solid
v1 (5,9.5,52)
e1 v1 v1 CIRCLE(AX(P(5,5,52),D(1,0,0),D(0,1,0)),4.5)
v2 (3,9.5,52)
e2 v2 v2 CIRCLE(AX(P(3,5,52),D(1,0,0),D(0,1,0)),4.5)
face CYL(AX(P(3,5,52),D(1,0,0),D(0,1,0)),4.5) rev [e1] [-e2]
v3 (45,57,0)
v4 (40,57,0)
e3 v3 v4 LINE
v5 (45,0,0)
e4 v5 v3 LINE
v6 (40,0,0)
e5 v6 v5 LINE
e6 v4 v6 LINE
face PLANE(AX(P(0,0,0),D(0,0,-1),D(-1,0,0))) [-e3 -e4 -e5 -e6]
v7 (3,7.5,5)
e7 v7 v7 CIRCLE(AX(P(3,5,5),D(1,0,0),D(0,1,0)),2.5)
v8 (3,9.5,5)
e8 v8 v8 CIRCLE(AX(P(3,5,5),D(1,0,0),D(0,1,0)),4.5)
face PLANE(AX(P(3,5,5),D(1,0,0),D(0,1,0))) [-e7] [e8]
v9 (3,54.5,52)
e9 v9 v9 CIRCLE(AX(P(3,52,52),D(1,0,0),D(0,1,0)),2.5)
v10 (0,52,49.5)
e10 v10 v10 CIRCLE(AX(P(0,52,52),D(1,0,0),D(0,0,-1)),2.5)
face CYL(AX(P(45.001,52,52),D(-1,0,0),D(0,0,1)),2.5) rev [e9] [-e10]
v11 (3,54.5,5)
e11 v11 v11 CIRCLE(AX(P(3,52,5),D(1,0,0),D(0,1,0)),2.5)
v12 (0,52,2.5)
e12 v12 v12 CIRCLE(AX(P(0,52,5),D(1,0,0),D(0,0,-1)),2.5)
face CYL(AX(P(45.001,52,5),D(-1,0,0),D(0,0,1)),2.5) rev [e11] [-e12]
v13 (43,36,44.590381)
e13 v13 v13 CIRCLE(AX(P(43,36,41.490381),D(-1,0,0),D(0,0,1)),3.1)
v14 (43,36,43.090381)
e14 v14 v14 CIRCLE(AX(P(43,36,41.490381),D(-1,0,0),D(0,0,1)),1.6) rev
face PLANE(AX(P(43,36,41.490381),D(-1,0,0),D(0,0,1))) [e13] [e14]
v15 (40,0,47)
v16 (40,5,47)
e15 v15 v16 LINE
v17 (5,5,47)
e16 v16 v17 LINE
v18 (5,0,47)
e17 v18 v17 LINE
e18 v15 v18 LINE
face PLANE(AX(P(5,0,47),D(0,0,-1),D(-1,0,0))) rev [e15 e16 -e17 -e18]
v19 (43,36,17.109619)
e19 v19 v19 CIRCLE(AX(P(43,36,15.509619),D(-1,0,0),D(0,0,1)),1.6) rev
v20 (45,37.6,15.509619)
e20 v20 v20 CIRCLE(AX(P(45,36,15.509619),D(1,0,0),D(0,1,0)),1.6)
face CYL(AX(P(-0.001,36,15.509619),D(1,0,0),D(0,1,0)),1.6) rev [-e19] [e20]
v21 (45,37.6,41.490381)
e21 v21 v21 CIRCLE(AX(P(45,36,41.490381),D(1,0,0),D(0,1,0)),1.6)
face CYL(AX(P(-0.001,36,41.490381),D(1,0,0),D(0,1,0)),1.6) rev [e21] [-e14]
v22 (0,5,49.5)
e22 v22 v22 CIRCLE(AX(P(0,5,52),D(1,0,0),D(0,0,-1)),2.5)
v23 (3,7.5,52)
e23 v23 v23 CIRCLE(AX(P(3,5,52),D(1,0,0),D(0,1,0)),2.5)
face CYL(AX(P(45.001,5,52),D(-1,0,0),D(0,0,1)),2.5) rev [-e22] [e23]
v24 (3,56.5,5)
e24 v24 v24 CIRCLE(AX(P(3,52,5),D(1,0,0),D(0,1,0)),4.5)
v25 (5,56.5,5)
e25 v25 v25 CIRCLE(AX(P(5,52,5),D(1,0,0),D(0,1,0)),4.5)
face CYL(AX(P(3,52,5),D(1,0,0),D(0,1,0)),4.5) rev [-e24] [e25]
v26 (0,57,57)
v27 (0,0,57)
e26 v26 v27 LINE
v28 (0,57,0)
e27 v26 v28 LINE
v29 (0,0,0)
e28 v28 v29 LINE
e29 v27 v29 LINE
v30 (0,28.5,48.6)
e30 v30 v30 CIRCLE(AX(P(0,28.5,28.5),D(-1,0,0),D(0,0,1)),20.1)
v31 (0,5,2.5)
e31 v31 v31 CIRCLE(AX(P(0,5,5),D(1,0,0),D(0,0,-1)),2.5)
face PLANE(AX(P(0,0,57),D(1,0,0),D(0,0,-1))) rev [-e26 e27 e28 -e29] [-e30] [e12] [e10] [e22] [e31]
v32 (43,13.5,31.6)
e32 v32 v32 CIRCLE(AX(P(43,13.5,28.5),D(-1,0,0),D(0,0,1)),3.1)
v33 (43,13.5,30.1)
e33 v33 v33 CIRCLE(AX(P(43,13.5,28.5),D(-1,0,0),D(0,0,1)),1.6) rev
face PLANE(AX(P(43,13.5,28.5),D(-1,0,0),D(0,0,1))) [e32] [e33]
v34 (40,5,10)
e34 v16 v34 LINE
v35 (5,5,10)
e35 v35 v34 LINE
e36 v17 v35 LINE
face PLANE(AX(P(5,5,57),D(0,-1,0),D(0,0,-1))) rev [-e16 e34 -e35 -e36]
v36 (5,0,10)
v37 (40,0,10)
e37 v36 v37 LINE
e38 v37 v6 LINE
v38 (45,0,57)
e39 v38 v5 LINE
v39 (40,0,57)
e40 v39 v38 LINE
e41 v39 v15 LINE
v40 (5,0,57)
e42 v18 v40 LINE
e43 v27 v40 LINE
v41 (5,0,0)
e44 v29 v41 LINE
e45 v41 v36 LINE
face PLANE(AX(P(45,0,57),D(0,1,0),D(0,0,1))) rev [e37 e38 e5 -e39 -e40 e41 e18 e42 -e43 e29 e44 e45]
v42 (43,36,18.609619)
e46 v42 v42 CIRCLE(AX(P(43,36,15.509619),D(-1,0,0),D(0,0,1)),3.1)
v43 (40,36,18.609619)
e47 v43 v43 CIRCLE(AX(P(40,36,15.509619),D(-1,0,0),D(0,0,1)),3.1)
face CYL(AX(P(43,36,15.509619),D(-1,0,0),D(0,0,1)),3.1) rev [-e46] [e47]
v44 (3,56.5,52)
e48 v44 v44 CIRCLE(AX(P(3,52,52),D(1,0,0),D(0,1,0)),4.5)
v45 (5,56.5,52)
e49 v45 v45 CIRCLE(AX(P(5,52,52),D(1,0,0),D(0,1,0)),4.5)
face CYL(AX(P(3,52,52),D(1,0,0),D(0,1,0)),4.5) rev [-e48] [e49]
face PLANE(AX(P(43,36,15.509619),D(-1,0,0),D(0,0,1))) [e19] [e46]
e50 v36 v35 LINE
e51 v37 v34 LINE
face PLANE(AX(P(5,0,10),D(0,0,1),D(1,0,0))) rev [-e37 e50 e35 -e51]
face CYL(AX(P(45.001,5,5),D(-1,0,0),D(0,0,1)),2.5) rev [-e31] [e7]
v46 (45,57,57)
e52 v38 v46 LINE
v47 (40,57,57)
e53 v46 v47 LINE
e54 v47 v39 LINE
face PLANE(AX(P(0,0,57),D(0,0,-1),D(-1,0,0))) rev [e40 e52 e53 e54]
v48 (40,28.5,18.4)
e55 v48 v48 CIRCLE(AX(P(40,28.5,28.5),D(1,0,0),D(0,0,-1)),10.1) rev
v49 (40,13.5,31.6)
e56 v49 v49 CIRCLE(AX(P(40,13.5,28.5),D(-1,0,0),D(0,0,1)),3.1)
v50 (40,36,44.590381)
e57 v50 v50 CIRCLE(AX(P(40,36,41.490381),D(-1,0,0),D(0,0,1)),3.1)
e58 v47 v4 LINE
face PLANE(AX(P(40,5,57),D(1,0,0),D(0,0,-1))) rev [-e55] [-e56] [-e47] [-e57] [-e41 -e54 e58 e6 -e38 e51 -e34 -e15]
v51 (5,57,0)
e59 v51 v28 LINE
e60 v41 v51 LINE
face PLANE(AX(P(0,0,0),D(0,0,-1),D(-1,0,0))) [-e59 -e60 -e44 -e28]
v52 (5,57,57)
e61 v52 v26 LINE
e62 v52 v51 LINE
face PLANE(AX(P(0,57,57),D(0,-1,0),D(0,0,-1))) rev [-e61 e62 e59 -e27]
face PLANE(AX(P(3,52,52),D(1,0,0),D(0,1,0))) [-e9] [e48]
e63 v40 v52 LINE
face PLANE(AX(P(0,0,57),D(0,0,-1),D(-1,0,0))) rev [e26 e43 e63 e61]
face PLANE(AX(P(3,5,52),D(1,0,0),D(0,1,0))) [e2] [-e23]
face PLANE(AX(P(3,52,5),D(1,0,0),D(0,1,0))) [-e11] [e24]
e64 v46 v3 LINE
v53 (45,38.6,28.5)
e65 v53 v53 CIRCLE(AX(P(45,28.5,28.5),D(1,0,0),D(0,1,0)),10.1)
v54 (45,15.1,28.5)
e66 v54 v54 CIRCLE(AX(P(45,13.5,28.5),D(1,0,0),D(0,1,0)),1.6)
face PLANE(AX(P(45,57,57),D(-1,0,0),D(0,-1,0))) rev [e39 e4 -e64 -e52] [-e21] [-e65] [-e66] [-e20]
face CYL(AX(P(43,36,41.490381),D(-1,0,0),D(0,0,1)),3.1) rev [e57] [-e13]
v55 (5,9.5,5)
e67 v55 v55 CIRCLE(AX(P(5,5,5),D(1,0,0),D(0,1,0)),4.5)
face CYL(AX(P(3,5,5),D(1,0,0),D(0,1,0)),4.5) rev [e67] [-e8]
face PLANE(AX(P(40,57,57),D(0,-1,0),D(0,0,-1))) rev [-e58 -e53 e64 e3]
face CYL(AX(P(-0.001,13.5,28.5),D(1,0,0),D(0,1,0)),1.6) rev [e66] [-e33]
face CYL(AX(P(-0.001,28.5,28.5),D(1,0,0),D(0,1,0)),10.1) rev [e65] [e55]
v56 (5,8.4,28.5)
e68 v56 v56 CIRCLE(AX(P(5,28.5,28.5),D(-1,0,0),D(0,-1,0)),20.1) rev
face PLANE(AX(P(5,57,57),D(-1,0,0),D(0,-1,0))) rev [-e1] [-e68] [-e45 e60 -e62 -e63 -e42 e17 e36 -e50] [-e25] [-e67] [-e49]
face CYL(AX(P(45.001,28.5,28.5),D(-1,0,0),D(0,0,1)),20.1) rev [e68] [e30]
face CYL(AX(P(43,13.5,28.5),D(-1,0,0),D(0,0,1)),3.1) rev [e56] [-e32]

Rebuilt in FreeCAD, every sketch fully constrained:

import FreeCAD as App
import Part
import Sketcher

V = App.Vector

doc = App.newDocument("Part")
body = doc.addObject("PartDesign::Body", "Body")

# Sketch on XY plane
sketch1 = body.newObject("Sketcher::SketchObject", "Sketch")
sketch1.AttachmentSupport = (doc.getObject("XY_Plane"), [""])
sketch1.MapMode = "FlatFace"
sketch1.addGeometry([
    Part.LineSegment(V(0, 57, 0), V(0, 0, 0)),  # 0
    Part.LineSegment(V(0, 0, 0), V(45, 0, 0)),  # 1
    Part.LineSegment(V(45, 0, 0), V(45, 57, 0)),  # 2
    Part.LineSegment(V(45, 57, 0), V(40, 57, 0)),  # 3
    Part.LineSegment(V(40, 57, 0), V(40, 5, 0)),  # 4
    Part.LineSegment(V(40, 5, 0), V(5, 5, 0)),  # 5
    Part.LineSegment(V(5, 5, 0), V(5, 57, 0)),  # 6
    Part.LineSegment(V(5, 57, 0), V(0, 57, 0)),  # 7
], False)
sketch1.addConstraint([
    Sketcher.Constraint("Coincident", 0, 2, 1, 1),
    Sketcher.Constraint("Coincident", 1, 2, 2, 1),
    Sketcher.Constraint("Coincident", 2, 2, 3, 1),
    Sketcher.Constraint("Coincident", 3, 2, 4, 1),
    Sketcher.Constraint("Coincident", 4, 2, 5, 1),
    Sketcher.Constraint("Coincident", 5, 2, 6, 1),
    Sketcher.Constraint("Coincident", 6, 2, 7, 1),
    Sketcher.Constraint("Coincident", 7, 2, 0, 1),
    Sketcher.Constraint("Vertical", 0),
    Sketcher.Constraint("Horizontal", 1),
    Sketcher.Constraint("Vertical", 2),
    Sketcher.Constraint("Horizontal", 3),
    Sketcher.Constraint("Vertical", 4),
    Sketcher.Constraint("Horizontal", 5),
    Sketcher.Constraint("Vertical", 6),
    Sketcher.Constraint("Horizontal", 7),
    Sketcher.Constraint("Coincident", 0, 2, -1, 1),
    Sketcher.Constraint("Horizontal", 3, 2, 6, 2),
    Sketcher.Constraint("Equal", 3, 7),
    Sketcher.Constraint("DistanceX", 1, 1, 1, 2, 45.0),
    Sketcher.Constraint("DistanceX", 3, 2, 3, 1, 5.0),
    Sketcher.Constraint("DistanceY", 0, 2, 0, 1, 57.0),
    Sketcher.Constraint("DistanceY", 4, 2, 4, 1, 52.0),
])
pad1 = body.newObject("PartDesign::Pad", "Pad")
pad1.Profile = sketch1
pad1.Length = 57

# Sketch on XZ plane
sketch2 = body.newObject("Sketcher::SketchObject", "Sketch001")
sketch2.AttachmentSupport = (doc.getObject("XZ_Plane"), [""])
sketch2.MapMode = "FlatFace"
sketch2.AttachmentOffset = App.Placement(V(0, 0, -5), App.Rotation())
sketch2.addGeometry([
    Part.LineSegment(V(5, 47, 0), V(5, 57, 0)),  # 0
    Part.LineSegment(V(5, 57, 0), V(40, 57, 0)),  # 1
    Part.LineSegment(V(40, 57, 0), V(40, 47, 0)),  # 2
    Part.LineSegment(V(40, 47, 0), V(5, 47, 0)),  # 3
    Part.LineSegment(V(5, 0, 0), V(5, 10, 0)),  # 4
    Part.LineSegment(V(5, 10, 0), V(40, 10, 0)),  # 5
    Part.LineSegment(V(40, 10, 0), V(40, 0, 0)),  # 6
    Part.LineSegment(V(40, 0, 0), V(5, 0, 0)),  # 7
], False)
sketch2.addConstraint([
    Sketcher.Constraint("Coincident", 0, 2, 1, 1),
    Sketcher.Constraint("Coincident", 1, 2, 2, 1),
    Sketcher.Constraint("Coincident", 2, 2, 3, 1),
    Sketcher.Constraint("Coincident", 3, 2, 0, 1),
    Sketcher.Constraint("Coincident", 4, 2, 5, 1),
    Sketcher.Constraint("Coincident", 5, 2, 6, 1),
    Sketcher.Constraint("Coincident", 6, 2, 7, 1),
    Sketcher.Constraint("Coincident", 7, 2, 4, 1),
    Sketcher.Constraint("Vertical", 0),
    Sketcher.Constraint("Horizontal", 1),
    Sketcher.Constraint("Vertical", 2),
    Sketcher.Constraint("Horizontal", 3),
    Sketcher.Constraint("Vertical", 4),
    Sketcher.Constraint("Horizontal", 5),
    Sketcher.Constraint("Vertical", 6),
    Sketcher.Constraint("Horizontal", 7),
    Sketcher.Constraint("PointOnObject", 6, 2, -1),
    Sketcher.Constraint("Vertical", 3, 2, 4, 2),
    Sketcher.Constraint("Vertical", 2, 2, 5, 2),
    Sketcher.Constraint("Equal", 2, 4),
    Sketcher.Constraint("DistanceX", 1, 1, 1, 2, 35.0),
    Sketcher.Constraint("DistanceY", 0, 1, 0, 2, 10.0),
    Sketcher.Constraint("DistanceX", -1, 1, 0, 2, 5.0),
    Sketcher.Constraint("DistanceY", -1, 1, 0, 2, 57.0),
])
pocket1 = body.newObject("PartDesign::Pocket", "Pocket")
pocket1.Profile = sketch2
pocket1.Type = "ThroughAll"
pocket1.Reversed = True

# Sketch on YZ plane
sketch3 = body.newObject("Sketcher::SketchObject", "Sketch002")
sketch3.AttachmentSupport = (doc.getObject("YZ_Plane"), [""])
sketch3.MapMode = "FlatFace"
sketch3.addGeometry(Part.Circle(V(28.5, 28.5, 0), V(0, 0, 1), 20.1), False)
sketch3.addConstraint([
    Sketcher.Constraint("Diameter", 0, 40.2),
    Sketcher.Constraint("DistanceX", -1, 1, 0, 3, 28.5),
    Sketcher.Constraint("DistanceY", -1, 1, 0, 3, 28.5),
])
pocket2 = body.newObject("PartDesign::Pocket", "Pocket001")
pocket2.Profile = sketch3
pocket2.Type = "UpToFirst"
pocket2.Reversed = True

# Sketch on YZ plane
sketch4 = body.newObject("Sketcher::SketchObject", "Sketch003")
sketch4.AttachmentSupport = (doc.getObject("YZ_Plane"), [""])
sketch4.MapMode = "FlatFace"
sketch4.AttachmentOffset = App.Placement(V(0, 0, 5), App.Rotation())
sketch4.addGeometry([
    Part.Circle(V(52, 52, 0), V(0, 0, 1), 4.5),
    Part.Circle(V(52, 5, 0), V(0, 0, 1), 4.5),
    Part.Circle(V(5, 5, 0), V(0, 0, 1), 4.5),
    Part.Circle(V(5, 52, 0), V(0, 0, 1), 4.5),
], False)
sketch4.addConstraint([
    Sketcher.Constraint("Equal", 0, 1),
    Sketcher.Constraint("Equal", 1, 2),
    Sketcher.Constraint("Equal", 2, 3),
    Sketcher.Constraint("Horizontal", 1, 3, 2, 3),
    Sketcher.Constraint("Horizontal", 0, 3, 3, 3),
    Sketcher.Constraint("Vertical", 0, 3, 1, 3),
    Sketcher.Constraint("Vertical", 2, 3, 3, 3),
    Sketcher.Constraint("Diameter", 0, 9.0),
    Sketcher.Constraint("DistanceX", -1, 1, 0, 3, 52.0),
    Sketcher.Constraint("DistanceY", -1, 1, 0, 3, 52.0),
    Sketcher.Constraint("DistanceY", -1, 1, 1, 3, 5.0),
    Sketcher.Constraint("DistanceX", -1, 1, 2, 3, 5.0),
])
pocket3 = body.newObject("PartDesign::Pocket", "Pocket002")
pocket3.Profile = sketch4
pocket3.Length = 2

# Sketch on YZ plane
sketch5 = body.newObject("Sketcher::SketchObject", "Sketch004")
sketch5.AttachmentSupport = (doc.getObject("YZ_Plane"), [""])
sketch5.MapMode = "FlatFace"
sketch5.addGeometry(Part.Circle(V(52, 52, 0), V(0, 0, 1), 2.5), False)
sketch5.addConstraint([
    Sketcher.Constraint("Diameter", 0, 5.0),
    Sketcher.Constraint("DistanceX", -1, 1, 0, 3, 52.0),
    Sketcher.Constraint("DistanceY", -1, 1, 0, 3, 52.0),
])
pocket4 = body.newObject("PartDesign::Pocket", "Pocket003")
pocket4.Profile = sketch5
pocket4.Type = "UpToFirst"
pocket4.Reversed = True

# Sketch on YZ plane
sketch6 = body.newObject("Sketcher::SketchObject", "Sketch005")
sketch6.AttachmentSupport = (doc.getObject("YZ_Plane"), [""])
sketch6.MapMode = "FlatFace"
sketch6.addGeometry(Part.Circle(V(52, 5, 0), V(0, 0, 1), 2.5), False)
sketch6.addConstraint([
    Sketcher.Constraint("Diameter", 0, 5.0),
    Sketcher.Constraint("DistanceX", -1, 1, 0, 3, 52.0),
    Sketcher.Constraint("DistanceY", -1, 1, 0, 3, 5.0),
])
pocket5 = body.newObject("PartDesign::Pocket", "Pocket004")
pocket5.Profile = sketch6
pocket5.Type = "UpToFirst"
pocket5.Reversed = True

# Sketch on YZ plane
sketch7 = body.newObject("Sketcher::SketchObject", "Sketch006")
sketch7.AttachmentSupport = (doc.getObject("YZ_Plane"), [""])
sketch7.MapMode = "FlatFace"
sketch7.addGeometry(Part.Circle(V(5, 5, 0), V(0, 0, 1), 2.5), False)
sketch7.addConstraint([
    Sketcher.Constraint("Diameter", 0, 5.0),
    Sketcher.Constraint("DistanceX", -1, 1, 0, 3, 5.0),
    Sketcher.Constraint("DistanceY", -1, 1, 0, 3, 5.0),
])
pocket6 = body.newObject("PartDesign::Pocket", "Pocket005")
pocket6.Profile = sketch7
pocket6.Type = "UpToFirst"
pocket6.Reversed = True

# Sketch on YZ plane
sketch8 = body.newObject("Sketcher::SketchObject", "Sketch007")
sketch8.AttachmentSupport = (doc.getObject("YZ_Plane"), [""])
sketch8.MapMode = "FlatFace"
sketch8.addGeometry(Part.Circle(V(5, 52, 0), V(0, 0, 1), 2.5), False)
sketch8.addConstraint([
    Sketcher.Constraint("Diameter", 0, 5.0),
    Sketcher.Constraint("DistanceX", -1, 1, 0, 3, 5.0),
    Sketcher.Constraint("DistanceY", -1, 1, 0, 3, 52.0),
])
pocket7 = body.newObject("PartDesign::Pocket", "Pocket006")
pocket7.Profile = sketch8
pocket7.Type = "UpToFirst"
pocket7.Reversed = True

# Sketch on YZ plane
sketch9 = body.newObject("Sketcher::SketchObject", "Sketch008")
sketch9.AttachmentSupport = (doc.getObject("YZ_Plane"), [""])
sketch9.MapMode = "FlatFace"
sketch9.AttachmentOffset = App.Placement(V(0, 0, 45), App.Rotation())
sketch9.addGeometry(Part.Circle(V(28.5, 28.5, 0), V(0, 0, 1), 10.1), False)
sketch9.addConstraint([
    Sketcher.Constraint("Diameter", 0, 20.2),
    Sketcher.Constraint("DistanceX", -1, 1, 0, 3, 28.5),
    Sketcher.Constraint("DistanceY", -1, 1, 0, 3, 28.5),
])
pocket8 = body.newObject("PartDesign::Pocket", "Pocket007")
pocket8.Profile = sketch9
pocket8.Type = "UpToFirst"

# Sketch on YZ plane
sketch10 = body.newObject("Sketcher::SketchObject", "Sketch009")
sketch10.AttachmentSupport = (doc.getObject("YZ_Plane"), [""])
sketch10.MapMode = "FlatFace"
sketch10.AttachmentOffset = App.Placement(V(0, 0, 45), App.Rotation())
sketch10.addGeometry(Part.Circle(V(13.5, 28.5, 0), V(0, 0, 1), 1.6), False)
sketch10.addConstraint([
    Sketcher.Constraint("Diameter", 0, 3.2),
    Sketcher.Constraint("DistanceX", -1, 1, 0, 3, 13.5),
    Sketcher.Constraint("DistanceY", -1, 1, 0, 3, 28.5),
])
pocket9 = body.newObject("PartDesign::Pocket", "Pocket008")
pocket9.Profile = sketch10
pocket9.Type = "UpToFirst"

# Sketch on YZ plane
sketch11 = body.newObject("Sketcher::SketchObject", "Sketch010")
sketch11.AttachmentSupport = (doc.getObject("YZ_Plane"), [""])
sketch11.MapMode = "FlatFace"
sketch11.AttachmentOffset = App.Placement(V(0, 0, 45), App.Rotation())
sketch11.addGeometry(Part.Circle(V(36, 41.490381, 0), V(0, 0, 1), 1.6), False)
sketch11.addConstraint([
    Sketcher.Constraint("Diameter", 0, 3.2),
    Sketcher.Constraint("DistanceX", -1, 1, 0, 3, 36.0),
    Sketcher.Constraint("DistanceY", -1, 1, 0, 3, 41.490381),
])
pocket10 = body.newObject("PartDesign::Pocket", "Pocket009")
pocket10.Profile = sketch11
pocket10.Type = "UpToFirst"

# Sketch on YZ plane
sketch12 = body.newObject("Sketcher::SketchObject", "Sketch011")
sketch12.AttachmentSupport = (doc.getObject("YZ_Plane"), [""])
sketch12.MapMode = "FlatFace"
sketch12.AttachmentOffset = App.Placement(V(0, 0, 45), App.Rotation())
sketch12.addGeometry(Part.Circle(V(36, 15.509619, 0), V(0, 0, 1), 1.6), False)
sketch12.addConstraint([
    Sketcher.Constraint("Diameter", 0, 3.2),
    Sketcher.Constraint("DistanceX", -1, 1, 0, 3, 36.0),
    Sketcher.Constraint("DistanceY", -1, 1, 0, 3, 15.509619),
])
pocket11 = body.newObject("PartDesign::Pocket", "Pocket010")
pocket11.Profile = sketch12
pocket11.Type = "UpToFirst"

# Sketch on YZ plane
sketch13 = body.newObject("Sketcher::SketchObject", "Sketch012")
sketch13.AttachmentSupport = (doc.getObject("YZ_Plane"), [""])
sketch13.MapMode = "FlatFace"
sketch13.AttachmentOffset = App.Placement(V(0, 0, 40), App.Rotation())
sketch13.addGeometry([
    Part.Circle(V(13.5, 28.5, 0), V(0, 0, 1), 3.1),
    Part.Circle(V(36, 15.509619, 0), V(0, 0, 1), 3.1),
    Part.Circle(V(36, 41.490381, 0), V(0, 0, 1), 3.1),
], False)
sketch13.addConstraint([
    Sketcher.Constraint("Equal", 0, 1),
    Sketcher.Constraint("Equal", 1, 2),
    Sketcher.Constraint("Vertical", 1, 3, 2, 3),
    Sketcher.Constraint("Diameter", 0, 6.2),
    Sketcher.Constraint("DistanceX", -1, 1, 1, 3, 36.0),
    Sketcher.Constraint("DistanceX", -1, 1, 0, 3, 13.5),
    Sketcher.Constraint("DistanceY", -1, 1, 0, 3, 28.5),
    Sketcher.Constraint("DistanceY", -1, 1, 1, 3, 15.509619),
    Sketcher.Constraint("DistanceY", -1, 1, 2, 3, 41.490381),
])
pocket12 = body.newObject("PartDesign::Pocket", "Pocket011")
pocket12.Profile = sketch13
pocket12.Length = 3
pocket12.Reversed = True

doc.recompute()
